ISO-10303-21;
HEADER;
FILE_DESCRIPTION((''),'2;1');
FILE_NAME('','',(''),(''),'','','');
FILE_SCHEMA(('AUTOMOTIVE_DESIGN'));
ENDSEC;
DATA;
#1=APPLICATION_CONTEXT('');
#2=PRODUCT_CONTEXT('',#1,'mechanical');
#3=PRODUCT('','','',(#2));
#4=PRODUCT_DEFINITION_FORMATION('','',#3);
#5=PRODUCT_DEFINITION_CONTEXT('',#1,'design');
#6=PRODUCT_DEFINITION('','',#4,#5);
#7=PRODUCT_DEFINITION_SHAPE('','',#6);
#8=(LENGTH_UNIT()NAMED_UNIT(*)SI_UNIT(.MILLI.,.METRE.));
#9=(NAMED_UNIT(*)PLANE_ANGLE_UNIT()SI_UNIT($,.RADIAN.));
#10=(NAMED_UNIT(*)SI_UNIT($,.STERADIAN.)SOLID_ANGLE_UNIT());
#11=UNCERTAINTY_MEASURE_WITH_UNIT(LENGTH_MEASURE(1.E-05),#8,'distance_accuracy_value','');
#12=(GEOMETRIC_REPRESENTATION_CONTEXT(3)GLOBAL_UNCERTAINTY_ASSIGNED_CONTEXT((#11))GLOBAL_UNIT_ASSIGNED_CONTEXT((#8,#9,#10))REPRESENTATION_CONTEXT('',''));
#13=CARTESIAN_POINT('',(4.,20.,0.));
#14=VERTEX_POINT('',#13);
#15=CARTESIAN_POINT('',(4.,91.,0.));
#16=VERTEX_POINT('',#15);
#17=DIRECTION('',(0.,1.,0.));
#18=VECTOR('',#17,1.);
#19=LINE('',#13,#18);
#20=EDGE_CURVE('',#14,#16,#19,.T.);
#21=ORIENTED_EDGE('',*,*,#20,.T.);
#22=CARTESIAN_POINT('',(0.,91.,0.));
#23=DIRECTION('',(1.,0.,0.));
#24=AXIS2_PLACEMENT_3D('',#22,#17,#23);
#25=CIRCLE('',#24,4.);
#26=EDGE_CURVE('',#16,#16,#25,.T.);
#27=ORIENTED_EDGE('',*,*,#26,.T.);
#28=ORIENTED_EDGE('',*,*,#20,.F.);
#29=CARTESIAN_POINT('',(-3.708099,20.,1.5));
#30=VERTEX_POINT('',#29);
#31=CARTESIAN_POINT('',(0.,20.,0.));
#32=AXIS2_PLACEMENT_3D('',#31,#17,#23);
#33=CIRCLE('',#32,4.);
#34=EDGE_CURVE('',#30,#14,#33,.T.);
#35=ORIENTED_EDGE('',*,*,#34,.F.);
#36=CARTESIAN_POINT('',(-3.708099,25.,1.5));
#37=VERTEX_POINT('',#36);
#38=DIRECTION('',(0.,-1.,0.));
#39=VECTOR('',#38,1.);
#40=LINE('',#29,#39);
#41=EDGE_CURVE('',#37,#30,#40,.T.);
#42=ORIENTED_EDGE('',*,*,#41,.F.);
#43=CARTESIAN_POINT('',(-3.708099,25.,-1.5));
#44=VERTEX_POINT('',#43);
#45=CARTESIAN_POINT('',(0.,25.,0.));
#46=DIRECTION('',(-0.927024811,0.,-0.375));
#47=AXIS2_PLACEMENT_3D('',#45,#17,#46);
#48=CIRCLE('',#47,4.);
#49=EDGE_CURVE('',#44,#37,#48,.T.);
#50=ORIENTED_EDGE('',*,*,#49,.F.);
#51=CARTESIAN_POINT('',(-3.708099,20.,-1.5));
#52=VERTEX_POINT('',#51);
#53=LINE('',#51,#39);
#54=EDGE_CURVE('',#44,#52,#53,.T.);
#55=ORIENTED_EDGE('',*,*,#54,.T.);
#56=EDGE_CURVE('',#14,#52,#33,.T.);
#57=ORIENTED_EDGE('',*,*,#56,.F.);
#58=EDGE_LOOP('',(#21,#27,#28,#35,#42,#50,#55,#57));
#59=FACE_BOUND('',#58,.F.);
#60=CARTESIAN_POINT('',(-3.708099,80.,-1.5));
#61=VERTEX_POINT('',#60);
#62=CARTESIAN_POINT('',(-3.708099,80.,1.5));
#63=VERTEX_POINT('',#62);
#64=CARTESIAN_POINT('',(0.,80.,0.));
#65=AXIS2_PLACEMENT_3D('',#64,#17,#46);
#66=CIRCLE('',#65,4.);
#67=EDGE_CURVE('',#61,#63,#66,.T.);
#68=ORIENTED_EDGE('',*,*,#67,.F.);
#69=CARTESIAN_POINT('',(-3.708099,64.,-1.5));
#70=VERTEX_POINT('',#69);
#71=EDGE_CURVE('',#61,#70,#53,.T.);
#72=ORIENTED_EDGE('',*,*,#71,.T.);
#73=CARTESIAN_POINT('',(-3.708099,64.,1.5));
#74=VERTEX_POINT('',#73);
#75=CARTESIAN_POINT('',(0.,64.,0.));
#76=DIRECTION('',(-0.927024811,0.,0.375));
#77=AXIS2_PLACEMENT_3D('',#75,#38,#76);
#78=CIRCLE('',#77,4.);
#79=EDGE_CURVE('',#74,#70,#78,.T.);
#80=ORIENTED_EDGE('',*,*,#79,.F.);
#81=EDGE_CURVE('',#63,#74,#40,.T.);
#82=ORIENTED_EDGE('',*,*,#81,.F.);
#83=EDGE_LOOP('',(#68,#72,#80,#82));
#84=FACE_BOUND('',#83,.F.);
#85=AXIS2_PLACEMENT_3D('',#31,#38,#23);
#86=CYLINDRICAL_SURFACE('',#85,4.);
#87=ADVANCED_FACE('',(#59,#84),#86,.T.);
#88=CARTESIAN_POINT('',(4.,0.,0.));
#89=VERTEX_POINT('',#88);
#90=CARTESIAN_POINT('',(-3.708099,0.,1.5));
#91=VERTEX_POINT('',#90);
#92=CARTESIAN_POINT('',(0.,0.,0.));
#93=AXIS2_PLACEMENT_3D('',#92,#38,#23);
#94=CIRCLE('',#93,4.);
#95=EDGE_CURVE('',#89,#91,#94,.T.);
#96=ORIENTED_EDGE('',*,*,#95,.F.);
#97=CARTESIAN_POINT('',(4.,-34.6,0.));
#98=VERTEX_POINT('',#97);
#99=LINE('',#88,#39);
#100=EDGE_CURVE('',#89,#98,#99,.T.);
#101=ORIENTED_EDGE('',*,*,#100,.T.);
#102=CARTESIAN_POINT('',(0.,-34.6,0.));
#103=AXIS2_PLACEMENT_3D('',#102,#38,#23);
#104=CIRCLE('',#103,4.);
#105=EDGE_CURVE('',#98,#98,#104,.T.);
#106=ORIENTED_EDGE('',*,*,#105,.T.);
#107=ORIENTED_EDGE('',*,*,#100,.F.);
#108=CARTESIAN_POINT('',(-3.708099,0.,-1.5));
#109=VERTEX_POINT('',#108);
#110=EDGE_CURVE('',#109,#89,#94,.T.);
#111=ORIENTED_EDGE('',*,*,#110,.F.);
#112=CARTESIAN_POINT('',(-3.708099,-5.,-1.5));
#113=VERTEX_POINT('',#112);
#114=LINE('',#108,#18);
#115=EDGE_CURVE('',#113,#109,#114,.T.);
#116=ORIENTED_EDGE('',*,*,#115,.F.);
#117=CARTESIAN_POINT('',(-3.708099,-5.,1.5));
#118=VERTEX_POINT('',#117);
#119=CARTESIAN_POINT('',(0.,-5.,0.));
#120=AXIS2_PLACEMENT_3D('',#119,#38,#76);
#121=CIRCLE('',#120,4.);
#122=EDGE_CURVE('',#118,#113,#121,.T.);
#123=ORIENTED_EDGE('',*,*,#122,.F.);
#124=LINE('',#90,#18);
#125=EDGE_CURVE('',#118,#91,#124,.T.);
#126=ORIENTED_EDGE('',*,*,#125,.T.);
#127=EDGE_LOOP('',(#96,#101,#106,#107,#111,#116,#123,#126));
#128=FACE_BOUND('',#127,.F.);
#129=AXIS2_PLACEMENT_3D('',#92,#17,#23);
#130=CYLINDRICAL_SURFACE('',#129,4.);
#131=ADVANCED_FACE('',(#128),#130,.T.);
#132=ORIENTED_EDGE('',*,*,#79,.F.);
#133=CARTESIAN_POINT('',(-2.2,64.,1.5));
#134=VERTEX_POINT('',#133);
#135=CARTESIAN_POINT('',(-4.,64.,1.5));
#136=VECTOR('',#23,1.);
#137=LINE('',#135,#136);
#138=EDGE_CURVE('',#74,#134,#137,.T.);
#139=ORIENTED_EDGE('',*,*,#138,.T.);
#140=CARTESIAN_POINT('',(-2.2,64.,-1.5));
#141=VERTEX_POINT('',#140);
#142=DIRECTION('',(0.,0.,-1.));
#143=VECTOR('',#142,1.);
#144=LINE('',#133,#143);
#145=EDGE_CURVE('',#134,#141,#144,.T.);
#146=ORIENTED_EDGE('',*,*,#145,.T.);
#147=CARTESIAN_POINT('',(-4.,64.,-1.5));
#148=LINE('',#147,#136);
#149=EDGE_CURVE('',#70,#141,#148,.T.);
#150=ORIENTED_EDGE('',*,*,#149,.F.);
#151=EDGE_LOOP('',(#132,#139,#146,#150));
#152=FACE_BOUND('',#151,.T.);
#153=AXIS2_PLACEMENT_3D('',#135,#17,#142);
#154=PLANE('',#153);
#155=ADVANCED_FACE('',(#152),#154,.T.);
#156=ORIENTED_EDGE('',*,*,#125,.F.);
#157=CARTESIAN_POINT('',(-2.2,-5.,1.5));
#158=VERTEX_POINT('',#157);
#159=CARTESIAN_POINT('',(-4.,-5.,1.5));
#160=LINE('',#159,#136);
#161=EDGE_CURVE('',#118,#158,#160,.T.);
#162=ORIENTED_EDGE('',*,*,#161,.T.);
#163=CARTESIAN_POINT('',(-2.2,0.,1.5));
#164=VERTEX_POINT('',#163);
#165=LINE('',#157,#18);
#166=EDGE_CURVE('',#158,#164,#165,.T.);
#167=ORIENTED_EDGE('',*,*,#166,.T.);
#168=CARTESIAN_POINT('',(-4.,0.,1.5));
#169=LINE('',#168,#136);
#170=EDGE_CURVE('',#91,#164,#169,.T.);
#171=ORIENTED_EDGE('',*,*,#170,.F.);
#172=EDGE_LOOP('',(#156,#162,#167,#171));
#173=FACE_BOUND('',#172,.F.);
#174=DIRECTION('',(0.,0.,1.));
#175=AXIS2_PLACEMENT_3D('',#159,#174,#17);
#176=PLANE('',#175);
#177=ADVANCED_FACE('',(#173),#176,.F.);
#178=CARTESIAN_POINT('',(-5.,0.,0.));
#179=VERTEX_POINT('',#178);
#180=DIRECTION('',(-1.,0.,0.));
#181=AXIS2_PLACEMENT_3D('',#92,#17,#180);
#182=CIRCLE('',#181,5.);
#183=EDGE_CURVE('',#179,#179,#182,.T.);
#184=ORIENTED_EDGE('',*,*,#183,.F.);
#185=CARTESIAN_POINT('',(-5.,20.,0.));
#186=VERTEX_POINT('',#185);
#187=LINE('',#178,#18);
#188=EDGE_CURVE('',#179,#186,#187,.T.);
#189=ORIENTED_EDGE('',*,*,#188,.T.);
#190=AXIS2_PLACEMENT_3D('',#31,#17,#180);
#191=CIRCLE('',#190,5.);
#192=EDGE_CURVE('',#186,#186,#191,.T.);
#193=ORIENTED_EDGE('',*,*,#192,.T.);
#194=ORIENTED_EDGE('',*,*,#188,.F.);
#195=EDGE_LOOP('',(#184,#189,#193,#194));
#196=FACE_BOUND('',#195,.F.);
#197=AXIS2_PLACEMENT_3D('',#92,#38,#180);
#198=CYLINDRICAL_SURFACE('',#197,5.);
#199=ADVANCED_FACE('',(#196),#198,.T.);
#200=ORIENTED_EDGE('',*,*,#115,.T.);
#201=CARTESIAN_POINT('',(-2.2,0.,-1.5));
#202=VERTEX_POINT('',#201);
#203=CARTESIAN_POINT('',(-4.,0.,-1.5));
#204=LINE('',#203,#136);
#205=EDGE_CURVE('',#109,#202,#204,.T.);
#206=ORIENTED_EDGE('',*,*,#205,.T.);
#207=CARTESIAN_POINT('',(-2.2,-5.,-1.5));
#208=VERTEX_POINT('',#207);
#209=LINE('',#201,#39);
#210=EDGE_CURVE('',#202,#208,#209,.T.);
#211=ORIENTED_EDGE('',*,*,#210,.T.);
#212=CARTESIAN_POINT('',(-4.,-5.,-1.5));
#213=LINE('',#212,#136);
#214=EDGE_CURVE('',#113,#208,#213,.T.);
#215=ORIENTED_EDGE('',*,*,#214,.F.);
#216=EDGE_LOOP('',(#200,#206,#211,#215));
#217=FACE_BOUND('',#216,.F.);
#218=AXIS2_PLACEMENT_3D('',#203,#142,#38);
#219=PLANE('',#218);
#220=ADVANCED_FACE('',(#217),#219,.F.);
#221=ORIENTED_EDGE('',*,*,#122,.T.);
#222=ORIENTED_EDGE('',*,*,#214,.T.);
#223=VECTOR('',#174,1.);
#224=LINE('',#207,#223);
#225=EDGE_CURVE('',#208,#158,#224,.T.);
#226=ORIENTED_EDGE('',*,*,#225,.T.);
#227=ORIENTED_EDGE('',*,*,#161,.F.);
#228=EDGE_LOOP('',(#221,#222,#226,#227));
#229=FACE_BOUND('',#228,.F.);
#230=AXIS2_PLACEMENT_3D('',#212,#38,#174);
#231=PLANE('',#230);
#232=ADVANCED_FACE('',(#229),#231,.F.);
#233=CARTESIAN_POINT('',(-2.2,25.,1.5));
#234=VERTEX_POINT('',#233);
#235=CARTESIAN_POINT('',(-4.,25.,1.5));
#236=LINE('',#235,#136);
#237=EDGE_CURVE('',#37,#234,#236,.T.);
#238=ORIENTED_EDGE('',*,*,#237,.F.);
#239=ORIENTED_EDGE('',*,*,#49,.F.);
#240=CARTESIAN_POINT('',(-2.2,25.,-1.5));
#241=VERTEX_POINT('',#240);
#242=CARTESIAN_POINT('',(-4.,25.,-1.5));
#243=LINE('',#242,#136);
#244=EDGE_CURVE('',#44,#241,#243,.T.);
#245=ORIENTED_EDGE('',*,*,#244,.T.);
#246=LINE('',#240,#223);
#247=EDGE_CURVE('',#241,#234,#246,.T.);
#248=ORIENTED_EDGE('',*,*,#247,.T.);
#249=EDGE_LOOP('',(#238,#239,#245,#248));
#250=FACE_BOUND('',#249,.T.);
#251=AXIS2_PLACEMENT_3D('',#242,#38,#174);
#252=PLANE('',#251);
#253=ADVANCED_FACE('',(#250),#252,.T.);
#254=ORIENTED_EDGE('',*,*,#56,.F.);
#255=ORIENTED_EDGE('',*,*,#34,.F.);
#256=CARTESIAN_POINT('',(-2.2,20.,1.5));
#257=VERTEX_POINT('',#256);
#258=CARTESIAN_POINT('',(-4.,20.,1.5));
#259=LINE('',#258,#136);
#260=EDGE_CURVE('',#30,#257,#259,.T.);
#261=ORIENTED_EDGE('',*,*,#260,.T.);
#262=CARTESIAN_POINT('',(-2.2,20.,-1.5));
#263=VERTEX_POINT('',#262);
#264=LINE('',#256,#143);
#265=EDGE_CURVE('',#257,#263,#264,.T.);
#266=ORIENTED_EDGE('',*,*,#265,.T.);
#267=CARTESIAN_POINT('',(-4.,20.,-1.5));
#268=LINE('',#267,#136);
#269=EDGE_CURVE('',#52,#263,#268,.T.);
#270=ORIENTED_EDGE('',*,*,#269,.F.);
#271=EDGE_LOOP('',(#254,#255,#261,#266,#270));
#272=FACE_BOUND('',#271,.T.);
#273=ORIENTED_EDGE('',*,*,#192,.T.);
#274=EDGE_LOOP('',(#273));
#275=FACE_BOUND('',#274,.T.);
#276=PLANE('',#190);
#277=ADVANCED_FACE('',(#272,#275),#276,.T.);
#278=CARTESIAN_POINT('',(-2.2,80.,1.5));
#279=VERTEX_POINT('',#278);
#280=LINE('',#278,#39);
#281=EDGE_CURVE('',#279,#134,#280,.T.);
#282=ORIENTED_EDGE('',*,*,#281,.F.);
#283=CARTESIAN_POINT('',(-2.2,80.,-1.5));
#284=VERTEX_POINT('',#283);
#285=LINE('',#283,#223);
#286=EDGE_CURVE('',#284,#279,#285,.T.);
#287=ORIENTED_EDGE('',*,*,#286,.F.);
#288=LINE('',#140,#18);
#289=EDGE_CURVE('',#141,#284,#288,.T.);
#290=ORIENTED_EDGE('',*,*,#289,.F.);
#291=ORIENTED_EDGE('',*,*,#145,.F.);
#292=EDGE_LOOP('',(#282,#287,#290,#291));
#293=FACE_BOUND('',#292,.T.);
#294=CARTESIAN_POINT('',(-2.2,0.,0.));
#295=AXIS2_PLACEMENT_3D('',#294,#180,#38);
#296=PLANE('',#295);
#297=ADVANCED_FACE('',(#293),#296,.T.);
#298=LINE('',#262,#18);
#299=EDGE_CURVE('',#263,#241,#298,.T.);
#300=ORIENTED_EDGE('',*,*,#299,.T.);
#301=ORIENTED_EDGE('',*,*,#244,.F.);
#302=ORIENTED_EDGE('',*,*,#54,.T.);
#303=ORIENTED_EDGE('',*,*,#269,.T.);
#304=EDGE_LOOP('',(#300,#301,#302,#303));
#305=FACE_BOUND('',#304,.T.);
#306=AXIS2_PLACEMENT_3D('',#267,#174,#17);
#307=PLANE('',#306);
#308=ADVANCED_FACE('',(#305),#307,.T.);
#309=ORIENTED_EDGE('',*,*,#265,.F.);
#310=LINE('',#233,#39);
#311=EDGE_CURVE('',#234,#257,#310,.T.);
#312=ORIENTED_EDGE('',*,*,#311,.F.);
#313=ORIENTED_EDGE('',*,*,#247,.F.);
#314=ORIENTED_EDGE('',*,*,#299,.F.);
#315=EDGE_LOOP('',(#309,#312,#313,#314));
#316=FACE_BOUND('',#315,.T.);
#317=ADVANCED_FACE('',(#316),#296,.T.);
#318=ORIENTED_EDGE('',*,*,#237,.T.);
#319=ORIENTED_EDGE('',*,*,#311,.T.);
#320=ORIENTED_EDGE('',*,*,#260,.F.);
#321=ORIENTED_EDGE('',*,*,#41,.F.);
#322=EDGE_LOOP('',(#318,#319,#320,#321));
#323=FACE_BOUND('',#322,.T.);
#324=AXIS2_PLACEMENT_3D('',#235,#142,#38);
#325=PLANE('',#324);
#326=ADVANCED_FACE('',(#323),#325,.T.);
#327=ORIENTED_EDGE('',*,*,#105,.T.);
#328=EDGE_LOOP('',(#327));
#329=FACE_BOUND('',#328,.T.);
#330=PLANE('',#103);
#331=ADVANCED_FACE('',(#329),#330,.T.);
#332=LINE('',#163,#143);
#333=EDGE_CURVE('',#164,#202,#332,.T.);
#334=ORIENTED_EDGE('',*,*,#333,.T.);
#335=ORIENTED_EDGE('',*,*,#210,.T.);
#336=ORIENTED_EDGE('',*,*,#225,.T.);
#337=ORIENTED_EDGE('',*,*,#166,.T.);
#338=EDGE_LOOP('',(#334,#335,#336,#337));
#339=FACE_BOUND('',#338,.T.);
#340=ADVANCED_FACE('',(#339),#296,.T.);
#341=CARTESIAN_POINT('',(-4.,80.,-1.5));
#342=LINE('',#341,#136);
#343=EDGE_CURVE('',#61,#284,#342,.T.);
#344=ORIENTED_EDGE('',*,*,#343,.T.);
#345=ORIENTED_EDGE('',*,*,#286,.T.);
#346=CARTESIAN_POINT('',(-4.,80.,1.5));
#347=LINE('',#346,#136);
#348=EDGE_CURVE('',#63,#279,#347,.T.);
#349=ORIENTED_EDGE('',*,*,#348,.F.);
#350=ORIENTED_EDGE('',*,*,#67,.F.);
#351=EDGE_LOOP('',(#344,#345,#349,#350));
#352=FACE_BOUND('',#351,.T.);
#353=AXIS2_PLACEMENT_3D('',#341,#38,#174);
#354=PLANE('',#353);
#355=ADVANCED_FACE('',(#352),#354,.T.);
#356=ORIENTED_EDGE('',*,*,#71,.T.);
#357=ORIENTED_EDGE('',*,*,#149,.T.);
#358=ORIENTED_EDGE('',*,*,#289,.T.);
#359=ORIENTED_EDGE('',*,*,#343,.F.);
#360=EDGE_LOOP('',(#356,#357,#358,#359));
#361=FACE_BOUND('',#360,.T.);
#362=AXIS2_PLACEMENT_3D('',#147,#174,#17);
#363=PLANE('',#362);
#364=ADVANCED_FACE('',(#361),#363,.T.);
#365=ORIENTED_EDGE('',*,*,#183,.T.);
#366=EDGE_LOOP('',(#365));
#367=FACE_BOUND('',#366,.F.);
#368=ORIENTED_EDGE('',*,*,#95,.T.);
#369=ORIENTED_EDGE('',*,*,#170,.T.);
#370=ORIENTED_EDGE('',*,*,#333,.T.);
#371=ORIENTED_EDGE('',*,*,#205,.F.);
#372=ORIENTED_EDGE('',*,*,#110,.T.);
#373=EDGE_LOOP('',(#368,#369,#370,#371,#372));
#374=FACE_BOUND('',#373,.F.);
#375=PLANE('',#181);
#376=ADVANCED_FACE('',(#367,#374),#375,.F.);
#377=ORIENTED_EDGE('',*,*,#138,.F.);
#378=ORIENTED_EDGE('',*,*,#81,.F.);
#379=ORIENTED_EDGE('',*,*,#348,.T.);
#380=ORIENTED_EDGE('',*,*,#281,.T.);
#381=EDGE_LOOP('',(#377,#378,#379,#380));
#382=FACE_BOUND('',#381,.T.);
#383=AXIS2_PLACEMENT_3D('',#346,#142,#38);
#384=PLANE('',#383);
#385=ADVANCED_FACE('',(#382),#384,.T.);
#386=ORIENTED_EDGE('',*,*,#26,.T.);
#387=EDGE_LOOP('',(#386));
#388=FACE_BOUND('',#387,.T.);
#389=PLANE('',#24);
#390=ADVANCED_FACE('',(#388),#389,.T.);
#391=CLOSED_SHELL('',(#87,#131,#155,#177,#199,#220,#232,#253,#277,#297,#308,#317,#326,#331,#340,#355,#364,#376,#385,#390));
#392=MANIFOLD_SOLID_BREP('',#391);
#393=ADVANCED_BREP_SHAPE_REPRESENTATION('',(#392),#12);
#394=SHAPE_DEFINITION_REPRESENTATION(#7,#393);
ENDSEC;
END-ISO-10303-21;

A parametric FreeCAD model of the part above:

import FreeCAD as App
import Part
import Sketcher
from FreeCAD import Vector
Q = App.Units.Quantity

doc = App.newDocument("Part")
body = doc.addObject("PartDesign::Body", "Body")

sketch1 = body.newObject("Sketcher::SketchObject", "Sketch")
sketch1.AttachmentSupport = (doc.getObject("XZ_Plane"), [""])
sketch1.MapMode = "FlatFace"
sketch1.addGeometry(Part.Circle(Vector(0, 0, 0), Vector(0, 0, 1), 5), False)
sketch1.addConstraint(Sketcher.Constraint("Coincident", 0, 3, -1, 1))
sketch1.addConstraint(Sketcher.Constraint("Diameter", 0, Q("10 mm")))
pad1 = body.newObject("PartDesign::Pad", "Pad")
pad1.Profile = sketch1
pad1.Length = 20
pad1.Reversed = True

sketch2 = body.newObject("Sketcher::SketchObject", "Sketch001")
sketch2.AttachmentSupport = (doc.getObject("XZ_Plane"), [""])
sketch2.MapMode = "FlatFace"
sketch2.AttachmentOffset = App.Placement(Vector(0, 0, -20), App.Rotation())
sketch2.addGeometry(Part.Circle(Vector(0, 0, 0), Vector(0, 0, 1), 4), False)
sketch2.addConstraint(Sketcher.Constraint("Coincident", 0, 3, -1, 1))
sketch2.addConstraint(Sketcher.Constraint("Diameter", 0, Q("8 mm")))
pad2 = body.newObject("PartDesign::Pad", "Pad001")
pad2.Profile = sketch2
pad2.Length = 71
pad2.Reversed = True

sketch3 = body.newObject("Sketcher::SketchObject", "Sketch002")
sketch3.AttachmentSupport = (doc.getObject("XZ_Plane"), [""])
sketch3.MapMode = "FlatFace"
sketch3.addGeometry(Part.Circle(Vector(0, 0, 0), Vector(0, 0, 1), 4), False)
sketch3.addConstraint(Sketcher.Constraint("Coincident", 0, 3, -1, 1))
sketch3.addConstraint(Sketcher.Constraint("Diameter", 0, Q("8 mm")))
pad3 = body.newObject("PartDesign::Pad", "Pad002")
pad3.Profile = sketch3
pad3.Length = 34.6

sketch4 = body.newObject("Sketcher::SketchObject", "Sketch003")
sketch4.AttachmentSupport = (doc.getObject("YZ_Plane"), [""])
sketch4.MapMode = "FlatFace"
sketch4.AttachmentOffset = App.Placement(Vector(0, 0, -4), App.Rotation())
sketch4.addGeometry(Part.LineSegment(Vector(0, 1.5, 0), Vector(0, -1.5, 0)), False)
sketch4.addGeometry(Part.LineSegment(Vector(0, -1.5, 0), Vector(-5, -1.5, 0)), False)
sketch4.addGeometry(Part.LineSegment(Vector(-5, -1.5, 0), Vector(-5, 1.5, 0)), False)
sketch4.addGeometry(Part.LineSegment(Vector(-5, 1.5, 0), Vector(0, 1.5, 0)), False)
sketch4.addGeometry(Part.LineSegment(Vector(20, 1.5, 0), Vector(25, 1.5, 0)), False)
sketch4.addGeometry(Part.LineSegment(Vector(25, 1.5, 0), Vector(25, -1.5, 0)), False)
sketch4.addGeometry(Part.LineSegment(Vector(25, -1.5, 0), Vector(20, -1.5, 0)), False)
sketch4.addGeometry(Part.LineSegment(Vector(20, -1.5, 0), Vector(20, 1.5, 0)), False)
sketch4.addGeometry(Part.LineSegment(Vector(64, 1.5, 0), Vector(80, 1.5, 0)), False)
sketch4.addGeometry(Part.LineSegment(Vector(80, 1.5, 0), Vector(80, -1.5, 0)), False)
sketch4.addGeometry(Part.LineSegment(Vector(80, -1.5, 0), Vector(64, -1.5, 0)), False)
sketch4.addGeometry(Part.LineSegment(Vector(64, -1.5, 0), Vector(64, 1.5, 0)), False)
sketch4.addConstraint(Sketcher.Constraint("Coincident", 0, 2, 1, 1))
sketch4.addConstraint(Sketcher.Constraint("Coincident", 1, 2, 2, 1))
sketch4.addConstraint(Sketcher.Constraint("Coincident", 2, 2, 3, 1))
sketch4.addConstraint(Sketcher.Constraint("Coincident", 3, 2, 0, 1))
sketch4.addConstraint(Sketcher.Constraint("Coincident", 4, 2, 5, 1))
sketch4.addConstraint(Sketcher.Constraint("Coincident", 5, 2, 6, 1))
sketch4.addConstraint(Sketcher.Constraint("Coincident", 6, 2, 7, 1))
sketch4.addConstraint(Sketcher.Constraint("Coincident", 7, 2, 4, 1))
sketch4.addConstraint(Sketcher.Constraint("Coincident", 8, 2, 9, 1))
sketch4.addConstraint(Sketcher.Constraint("Coincident", 9, 2, 10, 1))
sketch4.addConstraint(Sketcher.Constraint("Coincident", 10, 2, 11, 1))
sketch4.addConstraint(Sketcher.Constraint("Coincident", 11, 2, 8, 1))
sketch4.addConstraint(Sketcher.Constraint("Vertical", 0))
sketch4.addConstraint(Sketcher.Constraint("Horizontal", 1))
sketch4.addConstraint(Sketcher.Constraint("Vertical", 2))
sketch4.addConstraint(Sketcher.Constraint("Horizontal", 3))
sketch4.addConstraint(Sketcher.Constraint("Horizontal", 4))
sketch4.addConstraint(Sketcher.Constraint("Vertical", 5))
sketch4.addConstraint(Sketcher.Constraint("Horizontal", 6))
sketch4.addConstraint(Sketcher.Constraint("Vertical", 7))
sketch4.addConstraint(Sketcher.Constraint("Horizontal", 8))
sketch4.addConstraint(Sketcher.Constraint("Vertical", 9))
sketch4.addConstraint(Sketcher.Constraint("Horizontal", 10))
sketch4.addConstraint(Sketcher.Constraint("Vertical", 11))
sketch4.addConstraint(Sketcher.Constraint("Symmetric", 0, 2, 3, 2, -1, 1))
sketch4.addConstraint(Sketcher.Constraint("Horizontal", 3, 2, 4, 2))
sketch4.addConstraint(Sketcher.Constraint("Horizontal", 1, 2, 5, 2))
sketch4.addConstraint(Sketcher.Constraint("Horizontal", 7, 2, 8, 2))
sketch4.addConstraint(Sketcher.Constraint("Horizontal", 6, 2, 9, 2))
sketch4.addConstraint(Sketcher.Constraint("Equal", 3, 4))
sketch4.addConstraint(Sketcher.Constraint("DistanceX", 1, 2, 1, 1, Q("5 mm")))
sketch4.addConstraint(Sketcher.Constraint("DistanceX", 8, 1, 8, 2, Q("16 mm")))
sketch4.addConstraint(Sketcher.Constraint("DistanceY", 0, 2, 0, 1, Q("3 mm")))
sketch4.addConstraint(Sketcher.Constraint("DistanceX", -1, 1, 4, 2, Q("25 mm")))
sketch4.addConstraint(Sketcher.Constraint("DistanceX", -1, 1, 8, 2, Q("80 mm")))
pocket1 = body.newObject("PartDesign::Pocket", "Pocket")
pocket1.Profile = sketch4
pocket1.Length = 1.8
pocket1.Reversed = True

doc.recompute()
